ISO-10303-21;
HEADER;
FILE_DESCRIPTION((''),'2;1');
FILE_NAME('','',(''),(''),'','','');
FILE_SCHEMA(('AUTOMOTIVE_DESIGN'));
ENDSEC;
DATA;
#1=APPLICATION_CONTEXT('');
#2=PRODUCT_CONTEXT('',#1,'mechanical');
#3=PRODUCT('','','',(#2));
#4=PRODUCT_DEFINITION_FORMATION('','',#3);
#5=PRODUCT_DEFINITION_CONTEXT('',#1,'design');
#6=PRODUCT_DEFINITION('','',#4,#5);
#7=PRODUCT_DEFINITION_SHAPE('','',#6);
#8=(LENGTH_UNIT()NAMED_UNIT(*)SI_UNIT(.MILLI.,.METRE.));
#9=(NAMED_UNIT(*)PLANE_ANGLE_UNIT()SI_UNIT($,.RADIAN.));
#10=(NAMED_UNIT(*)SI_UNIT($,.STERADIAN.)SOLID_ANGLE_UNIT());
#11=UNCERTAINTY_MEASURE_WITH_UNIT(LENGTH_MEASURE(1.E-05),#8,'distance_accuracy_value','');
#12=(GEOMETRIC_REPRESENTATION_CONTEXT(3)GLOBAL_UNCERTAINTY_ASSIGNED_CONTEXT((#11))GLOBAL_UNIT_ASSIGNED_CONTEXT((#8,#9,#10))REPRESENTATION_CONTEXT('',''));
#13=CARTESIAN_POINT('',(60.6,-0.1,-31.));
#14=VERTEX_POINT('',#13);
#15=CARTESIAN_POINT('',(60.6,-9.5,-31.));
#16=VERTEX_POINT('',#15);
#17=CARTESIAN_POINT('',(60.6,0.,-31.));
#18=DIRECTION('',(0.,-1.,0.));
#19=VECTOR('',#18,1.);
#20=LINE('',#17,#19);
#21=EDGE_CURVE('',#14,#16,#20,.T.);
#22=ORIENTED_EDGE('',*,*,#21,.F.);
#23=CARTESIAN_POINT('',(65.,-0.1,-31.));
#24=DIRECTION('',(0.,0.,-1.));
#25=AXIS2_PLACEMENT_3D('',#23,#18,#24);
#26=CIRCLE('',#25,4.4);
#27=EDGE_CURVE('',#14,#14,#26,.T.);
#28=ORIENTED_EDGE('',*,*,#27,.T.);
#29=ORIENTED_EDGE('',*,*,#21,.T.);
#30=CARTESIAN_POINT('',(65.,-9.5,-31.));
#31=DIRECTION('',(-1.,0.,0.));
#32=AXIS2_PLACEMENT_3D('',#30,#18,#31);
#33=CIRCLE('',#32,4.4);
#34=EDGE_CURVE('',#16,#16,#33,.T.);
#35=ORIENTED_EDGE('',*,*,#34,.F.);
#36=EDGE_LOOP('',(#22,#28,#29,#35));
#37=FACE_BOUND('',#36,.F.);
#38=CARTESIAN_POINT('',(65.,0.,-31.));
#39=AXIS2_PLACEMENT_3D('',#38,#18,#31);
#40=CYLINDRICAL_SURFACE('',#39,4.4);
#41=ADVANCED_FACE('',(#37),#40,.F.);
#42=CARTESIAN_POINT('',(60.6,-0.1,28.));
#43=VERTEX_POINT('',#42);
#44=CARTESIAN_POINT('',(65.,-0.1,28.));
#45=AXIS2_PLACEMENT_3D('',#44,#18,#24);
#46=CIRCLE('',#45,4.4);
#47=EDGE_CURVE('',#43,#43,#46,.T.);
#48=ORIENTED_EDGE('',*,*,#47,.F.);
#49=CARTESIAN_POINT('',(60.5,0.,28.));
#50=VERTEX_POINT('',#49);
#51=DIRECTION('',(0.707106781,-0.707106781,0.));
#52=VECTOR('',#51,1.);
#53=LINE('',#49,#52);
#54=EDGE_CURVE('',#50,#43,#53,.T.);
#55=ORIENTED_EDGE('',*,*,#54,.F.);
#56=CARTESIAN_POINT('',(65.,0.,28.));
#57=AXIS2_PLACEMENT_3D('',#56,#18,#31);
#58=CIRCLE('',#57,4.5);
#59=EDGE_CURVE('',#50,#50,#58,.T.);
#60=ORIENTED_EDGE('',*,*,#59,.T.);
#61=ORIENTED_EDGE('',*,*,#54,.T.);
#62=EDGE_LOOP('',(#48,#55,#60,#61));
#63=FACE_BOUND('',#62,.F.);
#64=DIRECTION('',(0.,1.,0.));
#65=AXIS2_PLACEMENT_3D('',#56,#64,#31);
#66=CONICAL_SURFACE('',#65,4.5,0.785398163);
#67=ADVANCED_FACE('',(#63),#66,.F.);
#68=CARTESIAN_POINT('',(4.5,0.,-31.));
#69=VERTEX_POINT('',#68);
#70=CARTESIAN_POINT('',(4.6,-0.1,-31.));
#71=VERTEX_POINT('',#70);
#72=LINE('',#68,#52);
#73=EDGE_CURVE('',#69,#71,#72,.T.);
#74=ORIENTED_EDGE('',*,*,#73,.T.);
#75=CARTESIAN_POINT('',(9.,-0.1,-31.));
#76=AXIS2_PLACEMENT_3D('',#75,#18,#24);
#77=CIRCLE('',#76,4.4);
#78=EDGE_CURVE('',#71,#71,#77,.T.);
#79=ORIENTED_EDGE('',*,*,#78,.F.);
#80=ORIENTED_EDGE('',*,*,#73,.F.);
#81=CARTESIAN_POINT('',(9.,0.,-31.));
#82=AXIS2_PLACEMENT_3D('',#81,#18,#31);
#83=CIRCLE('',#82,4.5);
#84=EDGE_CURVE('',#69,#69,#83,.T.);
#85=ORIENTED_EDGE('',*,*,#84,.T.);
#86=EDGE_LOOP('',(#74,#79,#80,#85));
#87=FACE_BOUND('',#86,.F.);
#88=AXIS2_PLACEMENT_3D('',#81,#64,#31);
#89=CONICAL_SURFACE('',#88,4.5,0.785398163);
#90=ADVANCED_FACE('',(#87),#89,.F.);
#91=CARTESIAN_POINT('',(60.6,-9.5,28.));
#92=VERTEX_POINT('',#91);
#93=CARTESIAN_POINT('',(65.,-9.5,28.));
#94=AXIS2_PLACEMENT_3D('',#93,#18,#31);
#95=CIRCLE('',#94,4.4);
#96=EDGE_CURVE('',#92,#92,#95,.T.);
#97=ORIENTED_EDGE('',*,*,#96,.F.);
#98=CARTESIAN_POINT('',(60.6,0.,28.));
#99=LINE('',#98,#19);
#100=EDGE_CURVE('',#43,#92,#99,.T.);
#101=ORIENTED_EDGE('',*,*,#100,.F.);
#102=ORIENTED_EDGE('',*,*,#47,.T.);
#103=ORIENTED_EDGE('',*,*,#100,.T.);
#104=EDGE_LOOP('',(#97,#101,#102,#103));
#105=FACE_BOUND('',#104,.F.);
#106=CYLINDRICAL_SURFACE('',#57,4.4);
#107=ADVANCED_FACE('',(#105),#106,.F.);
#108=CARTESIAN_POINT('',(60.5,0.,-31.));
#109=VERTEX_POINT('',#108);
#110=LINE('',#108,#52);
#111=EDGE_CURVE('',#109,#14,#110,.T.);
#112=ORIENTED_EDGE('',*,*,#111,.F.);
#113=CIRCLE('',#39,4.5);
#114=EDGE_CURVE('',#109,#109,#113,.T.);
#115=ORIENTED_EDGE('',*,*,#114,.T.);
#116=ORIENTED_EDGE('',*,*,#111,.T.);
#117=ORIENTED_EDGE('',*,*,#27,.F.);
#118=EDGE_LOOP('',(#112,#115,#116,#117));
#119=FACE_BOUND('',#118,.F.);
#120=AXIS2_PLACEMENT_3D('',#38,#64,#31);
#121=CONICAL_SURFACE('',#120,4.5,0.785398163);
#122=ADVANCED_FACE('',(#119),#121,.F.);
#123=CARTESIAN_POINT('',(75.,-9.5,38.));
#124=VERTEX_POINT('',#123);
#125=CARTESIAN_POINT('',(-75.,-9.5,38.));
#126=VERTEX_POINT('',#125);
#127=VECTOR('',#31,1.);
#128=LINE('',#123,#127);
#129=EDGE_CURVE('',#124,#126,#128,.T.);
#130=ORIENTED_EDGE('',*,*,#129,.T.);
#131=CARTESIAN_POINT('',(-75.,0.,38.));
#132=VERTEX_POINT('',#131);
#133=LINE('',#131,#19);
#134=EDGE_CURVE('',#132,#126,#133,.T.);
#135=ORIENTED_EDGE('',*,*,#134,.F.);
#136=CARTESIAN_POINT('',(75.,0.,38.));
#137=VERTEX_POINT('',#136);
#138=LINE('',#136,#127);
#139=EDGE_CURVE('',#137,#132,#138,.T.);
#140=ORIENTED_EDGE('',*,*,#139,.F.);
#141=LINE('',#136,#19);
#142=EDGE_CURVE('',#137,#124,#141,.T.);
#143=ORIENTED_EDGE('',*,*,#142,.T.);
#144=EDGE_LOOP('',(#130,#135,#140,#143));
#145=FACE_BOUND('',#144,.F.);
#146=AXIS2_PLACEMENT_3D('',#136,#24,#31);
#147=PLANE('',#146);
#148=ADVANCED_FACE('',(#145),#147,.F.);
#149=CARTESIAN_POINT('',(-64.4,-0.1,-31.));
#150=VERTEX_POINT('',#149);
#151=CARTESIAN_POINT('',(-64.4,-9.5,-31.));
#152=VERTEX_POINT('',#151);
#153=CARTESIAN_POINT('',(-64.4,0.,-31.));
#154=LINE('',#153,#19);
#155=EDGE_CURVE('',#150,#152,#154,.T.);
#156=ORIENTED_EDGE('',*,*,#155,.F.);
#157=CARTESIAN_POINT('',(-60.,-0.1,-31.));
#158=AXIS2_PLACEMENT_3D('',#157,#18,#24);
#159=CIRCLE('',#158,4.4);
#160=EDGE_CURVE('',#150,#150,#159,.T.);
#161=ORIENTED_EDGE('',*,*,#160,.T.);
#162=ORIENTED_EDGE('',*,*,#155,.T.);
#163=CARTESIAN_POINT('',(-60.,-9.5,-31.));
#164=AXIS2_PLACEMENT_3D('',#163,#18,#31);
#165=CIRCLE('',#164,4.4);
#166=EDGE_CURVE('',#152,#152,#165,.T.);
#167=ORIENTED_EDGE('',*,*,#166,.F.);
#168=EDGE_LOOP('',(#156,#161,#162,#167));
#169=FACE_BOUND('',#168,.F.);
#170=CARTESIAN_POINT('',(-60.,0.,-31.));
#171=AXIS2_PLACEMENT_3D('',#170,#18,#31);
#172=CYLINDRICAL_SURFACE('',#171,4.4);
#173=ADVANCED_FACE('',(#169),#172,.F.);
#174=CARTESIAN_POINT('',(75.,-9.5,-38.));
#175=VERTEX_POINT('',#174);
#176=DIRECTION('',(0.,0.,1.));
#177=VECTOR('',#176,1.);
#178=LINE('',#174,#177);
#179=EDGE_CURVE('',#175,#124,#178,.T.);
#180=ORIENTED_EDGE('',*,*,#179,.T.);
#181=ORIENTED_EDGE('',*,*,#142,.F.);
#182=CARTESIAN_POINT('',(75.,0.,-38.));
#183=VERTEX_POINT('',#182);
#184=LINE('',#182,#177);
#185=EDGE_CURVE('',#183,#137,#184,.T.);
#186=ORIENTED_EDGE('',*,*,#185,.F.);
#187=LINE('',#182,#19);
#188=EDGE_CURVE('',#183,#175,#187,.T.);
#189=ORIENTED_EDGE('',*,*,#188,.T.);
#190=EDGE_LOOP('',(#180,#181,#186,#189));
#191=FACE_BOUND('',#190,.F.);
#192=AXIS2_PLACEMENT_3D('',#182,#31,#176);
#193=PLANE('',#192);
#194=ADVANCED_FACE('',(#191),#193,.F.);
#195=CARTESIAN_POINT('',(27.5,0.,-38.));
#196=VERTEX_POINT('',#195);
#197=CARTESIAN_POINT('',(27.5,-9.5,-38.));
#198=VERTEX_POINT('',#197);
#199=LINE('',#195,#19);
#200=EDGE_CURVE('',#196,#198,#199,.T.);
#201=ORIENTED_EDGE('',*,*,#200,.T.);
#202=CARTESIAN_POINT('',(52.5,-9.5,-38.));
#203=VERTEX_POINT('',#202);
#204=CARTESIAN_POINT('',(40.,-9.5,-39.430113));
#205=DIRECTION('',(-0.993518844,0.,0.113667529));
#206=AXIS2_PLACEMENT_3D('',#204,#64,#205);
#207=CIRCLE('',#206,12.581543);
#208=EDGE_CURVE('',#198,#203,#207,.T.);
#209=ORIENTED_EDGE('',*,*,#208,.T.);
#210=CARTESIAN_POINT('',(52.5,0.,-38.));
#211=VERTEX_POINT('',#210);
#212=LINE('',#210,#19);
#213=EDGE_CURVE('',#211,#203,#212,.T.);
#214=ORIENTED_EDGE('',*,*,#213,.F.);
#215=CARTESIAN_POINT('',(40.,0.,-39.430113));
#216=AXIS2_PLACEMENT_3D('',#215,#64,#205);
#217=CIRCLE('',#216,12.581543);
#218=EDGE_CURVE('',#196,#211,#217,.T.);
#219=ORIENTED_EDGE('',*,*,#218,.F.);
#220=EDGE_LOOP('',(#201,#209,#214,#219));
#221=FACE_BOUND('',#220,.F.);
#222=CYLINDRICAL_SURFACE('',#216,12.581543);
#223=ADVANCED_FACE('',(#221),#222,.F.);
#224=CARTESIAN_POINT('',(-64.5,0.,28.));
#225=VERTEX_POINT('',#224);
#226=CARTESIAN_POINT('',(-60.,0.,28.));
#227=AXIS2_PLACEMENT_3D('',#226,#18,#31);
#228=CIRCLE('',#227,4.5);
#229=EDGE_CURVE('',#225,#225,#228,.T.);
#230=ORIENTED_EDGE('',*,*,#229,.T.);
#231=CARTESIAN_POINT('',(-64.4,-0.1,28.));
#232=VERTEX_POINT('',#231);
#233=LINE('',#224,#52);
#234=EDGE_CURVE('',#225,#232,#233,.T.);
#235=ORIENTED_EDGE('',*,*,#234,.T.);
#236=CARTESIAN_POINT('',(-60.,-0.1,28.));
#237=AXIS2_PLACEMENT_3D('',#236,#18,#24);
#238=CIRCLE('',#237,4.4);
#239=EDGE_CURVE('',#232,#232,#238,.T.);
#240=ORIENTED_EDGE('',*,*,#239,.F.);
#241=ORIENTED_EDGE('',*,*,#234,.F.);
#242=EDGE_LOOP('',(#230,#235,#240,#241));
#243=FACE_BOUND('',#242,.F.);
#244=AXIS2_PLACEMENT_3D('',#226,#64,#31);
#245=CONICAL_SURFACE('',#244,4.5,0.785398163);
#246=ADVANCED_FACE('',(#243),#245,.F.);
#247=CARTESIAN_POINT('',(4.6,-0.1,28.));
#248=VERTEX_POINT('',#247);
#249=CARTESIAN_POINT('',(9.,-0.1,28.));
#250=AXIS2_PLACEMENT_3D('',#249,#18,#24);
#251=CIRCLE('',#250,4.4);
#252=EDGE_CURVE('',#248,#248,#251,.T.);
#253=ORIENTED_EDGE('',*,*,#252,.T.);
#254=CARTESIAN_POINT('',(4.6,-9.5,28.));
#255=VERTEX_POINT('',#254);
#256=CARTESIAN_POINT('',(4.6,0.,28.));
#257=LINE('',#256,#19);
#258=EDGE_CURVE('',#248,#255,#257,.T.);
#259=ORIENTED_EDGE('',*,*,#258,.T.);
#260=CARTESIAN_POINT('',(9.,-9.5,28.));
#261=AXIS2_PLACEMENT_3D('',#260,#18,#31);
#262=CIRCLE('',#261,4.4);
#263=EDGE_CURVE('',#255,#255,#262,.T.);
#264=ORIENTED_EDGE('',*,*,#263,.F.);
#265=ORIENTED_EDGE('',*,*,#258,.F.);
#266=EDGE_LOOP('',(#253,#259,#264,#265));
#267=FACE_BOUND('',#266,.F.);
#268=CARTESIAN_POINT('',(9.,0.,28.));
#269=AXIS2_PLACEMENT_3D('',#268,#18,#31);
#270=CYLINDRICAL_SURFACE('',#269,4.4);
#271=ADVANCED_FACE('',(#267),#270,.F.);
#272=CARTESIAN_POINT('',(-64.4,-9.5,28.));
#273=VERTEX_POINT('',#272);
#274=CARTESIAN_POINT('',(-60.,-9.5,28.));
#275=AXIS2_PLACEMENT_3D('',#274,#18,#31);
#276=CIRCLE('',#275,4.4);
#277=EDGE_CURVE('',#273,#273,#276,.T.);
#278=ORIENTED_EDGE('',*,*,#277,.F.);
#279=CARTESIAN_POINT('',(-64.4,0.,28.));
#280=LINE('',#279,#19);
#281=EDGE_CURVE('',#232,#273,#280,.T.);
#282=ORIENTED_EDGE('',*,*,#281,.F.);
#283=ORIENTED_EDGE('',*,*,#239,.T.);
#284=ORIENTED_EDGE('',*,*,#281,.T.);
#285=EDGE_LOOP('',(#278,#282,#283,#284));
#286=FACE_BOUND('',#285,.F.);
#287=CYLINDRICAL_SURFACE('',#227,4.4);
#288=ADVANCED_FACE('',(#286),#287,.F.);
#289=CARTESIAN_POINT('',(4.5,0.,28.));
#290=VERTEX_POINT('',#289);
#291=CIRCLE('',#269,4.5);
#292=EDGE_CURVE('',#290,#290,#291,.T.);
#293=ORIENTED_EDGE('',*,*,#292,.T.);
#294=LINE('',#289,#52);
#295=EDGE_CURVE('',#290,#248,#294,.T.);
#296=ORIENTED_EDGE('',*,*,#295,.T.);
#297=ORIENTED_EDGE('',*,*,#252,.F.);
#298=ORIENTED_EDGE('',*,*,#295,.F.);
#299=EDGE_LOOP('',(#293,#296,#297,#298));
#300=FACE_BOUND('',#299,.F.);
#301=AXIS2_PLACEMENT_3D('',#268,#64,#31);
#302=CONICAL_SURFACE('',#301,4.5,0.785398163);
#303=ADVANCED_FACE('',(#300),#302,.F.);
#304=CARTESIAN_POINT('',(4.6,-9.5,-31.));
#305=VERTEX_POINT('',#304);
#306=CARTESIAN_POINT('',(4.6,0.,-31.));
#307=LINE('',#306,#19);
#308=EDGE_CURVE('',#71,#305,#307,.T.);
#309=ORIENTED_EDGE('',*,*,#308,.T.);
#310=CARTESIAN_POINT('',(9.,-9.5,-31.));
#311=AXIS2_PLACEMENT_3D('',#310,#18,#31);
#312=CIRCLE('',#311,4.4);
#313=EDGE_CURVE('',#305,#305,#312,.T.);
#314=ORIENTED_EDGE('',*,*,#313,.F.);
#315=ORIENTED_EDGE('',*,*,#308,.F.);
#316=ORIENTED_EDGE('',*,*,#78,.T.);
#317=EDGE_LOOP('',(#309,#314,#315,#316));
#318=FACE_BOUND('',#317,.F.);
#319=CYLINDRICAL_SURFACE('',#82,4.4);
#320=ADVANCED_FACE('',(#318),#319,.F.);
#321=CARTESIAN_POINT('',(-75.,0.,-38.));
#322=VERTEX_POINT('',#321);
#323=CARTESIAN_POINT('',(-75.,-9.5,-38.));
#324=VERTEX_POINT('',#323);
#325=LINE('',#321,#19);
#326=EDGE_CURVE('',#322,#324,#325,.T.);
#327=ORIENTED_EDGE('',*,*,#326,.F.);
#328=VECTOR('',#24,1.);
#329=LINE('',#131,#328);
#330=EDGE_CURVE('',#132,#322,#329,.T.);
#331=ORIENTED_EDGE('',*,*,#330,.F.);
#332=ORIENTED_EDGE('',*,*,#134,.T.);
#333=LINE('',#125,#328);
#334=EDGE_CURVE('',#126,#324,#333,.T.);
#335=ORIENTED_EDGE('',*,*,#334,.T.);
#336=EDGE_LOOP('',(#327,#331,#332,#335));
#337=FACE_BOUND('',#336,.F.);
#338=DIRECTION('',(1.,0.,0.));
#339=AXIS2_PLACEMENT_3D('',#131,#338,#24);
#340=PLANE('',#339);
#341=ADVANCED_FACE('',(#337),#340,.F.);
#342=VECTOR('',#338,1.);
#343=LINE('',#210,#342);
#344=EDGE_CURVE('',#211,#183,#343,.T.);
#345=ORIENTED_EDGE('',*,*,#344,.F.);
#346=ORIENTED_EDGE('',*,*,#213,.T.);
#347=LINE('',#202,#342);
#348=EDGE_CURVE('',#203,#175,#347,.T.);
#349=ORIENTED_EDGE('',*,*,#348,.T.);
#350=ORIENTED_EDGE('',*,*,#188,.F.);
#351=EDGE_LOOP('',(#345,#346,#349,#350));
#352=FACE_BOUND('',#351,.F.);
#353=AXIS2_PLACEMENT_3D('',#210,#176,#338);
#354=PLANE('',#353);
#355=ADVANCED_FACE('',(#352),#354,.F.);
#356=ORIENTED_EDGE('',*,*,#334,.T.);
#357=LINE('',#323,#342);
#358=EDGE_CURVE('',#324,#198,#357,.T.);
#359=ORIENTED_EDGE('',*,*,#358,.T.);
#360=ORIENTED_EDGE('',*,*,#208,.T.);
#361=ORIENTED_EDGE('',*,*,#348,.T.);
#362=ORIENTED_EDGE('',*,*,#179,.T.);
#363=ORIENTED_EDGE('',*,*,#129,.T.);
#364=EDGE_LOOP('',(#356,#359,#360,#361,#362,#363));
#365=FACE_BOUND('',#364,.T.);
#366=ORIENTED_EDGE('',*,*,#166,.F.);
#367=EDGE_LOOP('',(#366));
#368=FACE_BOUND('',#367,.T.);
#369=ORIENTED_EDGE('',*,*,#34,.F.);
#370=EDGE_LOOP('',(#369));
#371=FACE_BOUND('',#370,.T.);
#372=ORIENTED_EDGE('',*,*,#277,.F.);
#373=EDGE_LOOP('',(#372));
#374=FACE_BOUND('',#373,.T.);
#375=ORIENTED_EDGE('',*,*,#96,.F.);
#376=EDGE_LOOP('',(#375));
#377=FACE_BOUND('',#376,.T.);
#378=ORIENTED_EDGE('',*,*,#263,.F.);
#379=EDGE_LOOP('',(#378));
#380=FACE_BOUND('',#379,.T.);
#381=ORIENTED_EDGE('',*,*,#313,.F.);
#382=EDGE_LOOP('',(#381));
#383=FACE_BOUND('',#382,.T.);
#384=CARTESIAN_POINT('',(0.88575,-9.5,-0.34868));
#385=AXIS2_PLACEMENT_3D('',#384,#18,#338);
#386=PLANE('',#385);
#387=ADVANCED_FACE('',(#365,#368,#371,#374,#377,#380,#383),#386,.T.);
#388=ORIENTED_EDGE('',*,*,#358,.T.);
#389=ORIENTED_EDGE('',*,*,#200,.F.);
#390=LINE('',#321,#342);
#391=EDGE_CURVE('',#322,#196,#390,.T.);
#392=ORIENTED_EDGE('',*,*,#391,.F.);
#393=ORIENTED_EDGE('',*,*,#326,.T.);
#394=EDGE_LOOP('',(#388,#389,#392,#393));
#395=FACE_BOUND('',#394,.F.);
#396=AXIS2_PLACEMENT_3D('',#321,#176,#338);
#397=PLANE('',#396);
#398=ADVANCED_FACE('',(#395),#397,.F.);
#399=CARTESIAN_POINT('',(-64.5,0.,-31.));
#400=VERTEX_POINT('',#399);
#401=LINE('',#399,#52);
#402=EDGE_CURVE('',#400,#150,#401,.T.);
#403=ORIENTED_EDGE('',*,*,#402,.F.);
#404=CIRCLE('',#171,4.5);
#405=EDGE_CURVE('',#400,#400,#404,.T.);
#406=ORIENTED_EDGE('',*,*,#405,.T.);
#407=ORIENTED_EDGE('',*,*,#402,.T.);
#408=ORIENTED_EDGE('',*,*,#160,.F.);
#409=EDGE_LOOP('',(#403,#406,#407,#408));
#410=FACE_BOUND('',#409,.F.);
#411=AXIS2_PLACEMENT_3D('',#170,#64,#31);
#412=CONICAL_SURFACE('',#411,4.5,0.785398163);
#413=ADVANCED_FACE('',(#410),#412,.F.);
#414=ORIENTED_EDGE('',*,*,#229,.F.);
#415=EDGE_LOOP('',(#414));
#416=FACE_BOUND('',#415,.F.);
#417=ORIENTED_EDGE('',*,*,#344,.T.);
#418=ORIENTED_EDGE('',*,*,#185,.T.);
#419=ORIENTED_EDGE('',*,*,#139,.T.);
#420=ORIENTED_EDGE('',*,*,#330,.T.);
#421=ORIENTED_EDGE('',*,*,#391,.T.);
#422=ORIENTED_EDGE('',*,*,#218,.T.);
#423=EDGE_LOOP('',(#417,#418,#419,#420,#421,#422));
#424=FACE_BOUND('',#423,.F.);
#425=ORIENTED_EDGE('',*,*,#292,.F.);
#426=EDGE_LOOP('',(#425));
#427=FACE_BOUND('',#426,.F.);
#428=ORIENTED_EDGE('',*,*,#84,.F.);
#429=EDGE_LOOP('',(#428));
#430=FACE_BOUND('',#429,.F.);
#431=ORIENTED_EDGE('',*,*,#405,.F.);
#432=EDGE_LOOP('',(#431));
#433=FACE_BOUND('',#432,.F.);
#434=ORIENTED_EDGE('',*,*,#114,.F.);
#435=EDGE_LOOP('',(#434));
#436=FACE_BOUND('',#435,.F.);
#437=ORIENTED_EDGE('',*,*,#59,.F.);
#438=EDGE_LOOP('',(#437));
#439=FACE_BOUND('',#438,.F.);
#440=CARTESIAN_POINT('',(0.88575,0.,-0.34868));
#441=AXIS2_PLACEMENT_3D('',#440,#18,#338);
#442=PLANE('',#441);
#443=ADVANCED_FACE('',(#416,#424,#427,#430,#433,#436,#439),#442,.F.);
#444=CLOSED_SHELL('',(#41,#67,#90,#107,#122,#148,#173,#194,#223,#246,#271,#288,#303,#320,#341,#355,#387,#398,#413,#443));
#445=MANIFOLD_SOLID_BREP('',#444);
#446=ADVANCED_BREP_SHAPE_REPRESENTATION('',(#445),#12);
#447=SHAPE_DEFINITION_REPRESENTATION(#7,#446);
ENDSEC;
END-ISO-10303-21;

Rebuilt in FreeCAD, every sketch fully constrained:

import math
import FreeCAD as App
import Part
import Sketcher
from FreeCAD import Vector
Q = App.Units.Quantity

doc = App.newDocument("Part")
body = doc.addObject("PartDesign::Body", "Body")

# Sketch on XZ plane
sketch1 = body.newObject("Sketcher::SketchObject", "Sketch")
sketch1.AttachmentSupport = (doc.getObject("XZ_Plane"), [""])
sketch1.MapMode = "FlatFace"
sketch1.addGeometry([
    Part.LineSegment(Vector(52, -38, 0), Vector(75, -38, 0)),  # 0
    Part.LineSegment(Vector(75, -38, 0), Vector(75, 38, 0)),  # 1
    Part.LineSegment(Vector(75, 38, 0), Vector(-75, 38, 0)),  # 2
    Part.LineSegment(Vector(-75, 38, 0), Vector(-75, -38, 0)),  # 3
    Part.LineSegment(Vector(-75, -38, 0), Vector(28, -38, 0)),  # 4
    Part.ArcOfCircle(Part.Circle(Vector(40, -39, 0), Vector(0, 0, 1), 13), math.radians(7), math.radians(173)),  # 5
], False)
sketch1.addConstraint([
    Sketcher.Constraint("Coincident", 0, 2, 1, 1),
    Sketcher.Constraint("Coincident", 1, 2, 2, 1),
    Sketcher.Constraint("Coincident", 2, 2, 3, 1),
    Sketcher.Constraint("Coincident", 3, 2, 4, 1),
    Sketcher.Constraint("Coincident", 4, 2, 5, 2),
    Sketcher.Constraint("Coincident", 5, 1, 0, 1),
    Sketcher.Constraint("Horizontal", 0),
    Sketcher.Constraint("Vertical", 1),
    Sketcher.Constraint("Horizontal", 2),
    Sketcher.Constraint("Vertical", 3),
    Sketcher.Constraint("Horizontal", 4),
    Sketcher.Constraint("Symmetric", 0, 2, 2, 2, -1, 1),
    Sketcher.Constraint("Horizontal", 0, 2, 3, 2),
    Sketcher.Constraint("DistanceX", 2, 2, 2, 1, Q("150 mm")),
    Sketcher.Constraint("DistanceY", 1, 1, 1, 2, Q("76 mm")),
    Sketcher.Constraint("DistanceX", 0, 1, 0, 2, Q("22.5 mm")),
    Sketcher.Constraint("DistanceX", 4, 1, 4, 2, Q("102.5 mm")),
    Sketcher.Constraint("Radius", 5, Q("12.581543 mm")),
])
pad1 = body.newObject("PartDesign::Pad", "Pad")
pad1.Profile = sketch1
pad1.Length = 9.5

# Sketch on XZ plane
sketch2 = body.newObject("Sketcher::SketchObject", "Sketch001")
sketch2.AttachmentSupport = (doc.getObject("XZ_Plane"), [""])
sketch2.MapMode = "FlatFace"
sketch2.addGeometry([
    Part.Circle(Vector(-60, 28, 0), Vector(0, 0, 1), 4.4),  # 0
    Part.Circle(Vector(65, 28, 0), Vector(0, 0, 1), 4.4),  # 1
    Part.Circle(Vector(9, -31, 0), Vector(0, 0, 1), 4.4),  # 2
    Part.Circle(Vector(-60, -31, 0), Vector(0, 0, 1), 4.4),  # 3
    Part.Circle(Vector(65, -31, 0), Vector(0, 0, 1), 4.4),  # 4
    Part.Circle(Vector(9, 28, 0), Vector(0, 0, 1), 4.4),  # 5
], False)
sketch2.addConstraint([
    Sketcher.Constraint("Equal", 0, 1),
    Sketcher.Constraint("Equal", 1, 2),
    Sketcher.Constraint("Equal", 2, 3),
    Sketcher.Constraint("Equal", 3, 4),
    Sketcher.Constraint("Equal", 4, 5),
    Sketcher.Constraint("Horizontal", 0, 3, 1, 3),
    Sketcher.Constraint("Horizontal", 2, 3, 3, 3),
    Sketcher.Constraint("Horizontal", 3, 3, 4, 3),
    Sketcher.Constraint("Horizontal", 1, 3, 5, 3),
    Sketcher.Constraint("Vertical", 0, 3, 3, 3),
    Sketcher.Constraint("Vertical", 1, 3, 4, 3),
    Sketcher.Constraint("Vertical", 2, 3, 5, 3),
    Sketcher.Constraint("Diameter", 0, Q("8.8 mm")),
    Sketcher.Constraint("DistanceX", 0, 3, -1, 1, Q("60 mm")),
    Sketcher.Constraint("DistanceY", -1, 1, 0, 3, Q("28 mm")),
    Sketcher.Constraint("DistanceX", -1, 1, 1, 3, Q("65 mm")),
    Sketcher.Constraint("DistanceX", -1, 1, 2, 3, Q("9 mm")),
    Sketcher.Constraint("DistanceY", 2, 3, -1, 1, Q("31 mm")),
])
doc.recompute()
hole = body.newObject("PartDesign::Hole", "Hole")
hole.Profile = sketch2
hole.ThreadType = "None"
hole.Diameter = 8.8
hole.DepthType = "ThroughAll"
hole.HoleCutType = "Countersink"
hole.HoleCutDiameter = 9
hole.HoleCutCountersinkAngle = 90
hole.Reversed = True

doc.recompute()
